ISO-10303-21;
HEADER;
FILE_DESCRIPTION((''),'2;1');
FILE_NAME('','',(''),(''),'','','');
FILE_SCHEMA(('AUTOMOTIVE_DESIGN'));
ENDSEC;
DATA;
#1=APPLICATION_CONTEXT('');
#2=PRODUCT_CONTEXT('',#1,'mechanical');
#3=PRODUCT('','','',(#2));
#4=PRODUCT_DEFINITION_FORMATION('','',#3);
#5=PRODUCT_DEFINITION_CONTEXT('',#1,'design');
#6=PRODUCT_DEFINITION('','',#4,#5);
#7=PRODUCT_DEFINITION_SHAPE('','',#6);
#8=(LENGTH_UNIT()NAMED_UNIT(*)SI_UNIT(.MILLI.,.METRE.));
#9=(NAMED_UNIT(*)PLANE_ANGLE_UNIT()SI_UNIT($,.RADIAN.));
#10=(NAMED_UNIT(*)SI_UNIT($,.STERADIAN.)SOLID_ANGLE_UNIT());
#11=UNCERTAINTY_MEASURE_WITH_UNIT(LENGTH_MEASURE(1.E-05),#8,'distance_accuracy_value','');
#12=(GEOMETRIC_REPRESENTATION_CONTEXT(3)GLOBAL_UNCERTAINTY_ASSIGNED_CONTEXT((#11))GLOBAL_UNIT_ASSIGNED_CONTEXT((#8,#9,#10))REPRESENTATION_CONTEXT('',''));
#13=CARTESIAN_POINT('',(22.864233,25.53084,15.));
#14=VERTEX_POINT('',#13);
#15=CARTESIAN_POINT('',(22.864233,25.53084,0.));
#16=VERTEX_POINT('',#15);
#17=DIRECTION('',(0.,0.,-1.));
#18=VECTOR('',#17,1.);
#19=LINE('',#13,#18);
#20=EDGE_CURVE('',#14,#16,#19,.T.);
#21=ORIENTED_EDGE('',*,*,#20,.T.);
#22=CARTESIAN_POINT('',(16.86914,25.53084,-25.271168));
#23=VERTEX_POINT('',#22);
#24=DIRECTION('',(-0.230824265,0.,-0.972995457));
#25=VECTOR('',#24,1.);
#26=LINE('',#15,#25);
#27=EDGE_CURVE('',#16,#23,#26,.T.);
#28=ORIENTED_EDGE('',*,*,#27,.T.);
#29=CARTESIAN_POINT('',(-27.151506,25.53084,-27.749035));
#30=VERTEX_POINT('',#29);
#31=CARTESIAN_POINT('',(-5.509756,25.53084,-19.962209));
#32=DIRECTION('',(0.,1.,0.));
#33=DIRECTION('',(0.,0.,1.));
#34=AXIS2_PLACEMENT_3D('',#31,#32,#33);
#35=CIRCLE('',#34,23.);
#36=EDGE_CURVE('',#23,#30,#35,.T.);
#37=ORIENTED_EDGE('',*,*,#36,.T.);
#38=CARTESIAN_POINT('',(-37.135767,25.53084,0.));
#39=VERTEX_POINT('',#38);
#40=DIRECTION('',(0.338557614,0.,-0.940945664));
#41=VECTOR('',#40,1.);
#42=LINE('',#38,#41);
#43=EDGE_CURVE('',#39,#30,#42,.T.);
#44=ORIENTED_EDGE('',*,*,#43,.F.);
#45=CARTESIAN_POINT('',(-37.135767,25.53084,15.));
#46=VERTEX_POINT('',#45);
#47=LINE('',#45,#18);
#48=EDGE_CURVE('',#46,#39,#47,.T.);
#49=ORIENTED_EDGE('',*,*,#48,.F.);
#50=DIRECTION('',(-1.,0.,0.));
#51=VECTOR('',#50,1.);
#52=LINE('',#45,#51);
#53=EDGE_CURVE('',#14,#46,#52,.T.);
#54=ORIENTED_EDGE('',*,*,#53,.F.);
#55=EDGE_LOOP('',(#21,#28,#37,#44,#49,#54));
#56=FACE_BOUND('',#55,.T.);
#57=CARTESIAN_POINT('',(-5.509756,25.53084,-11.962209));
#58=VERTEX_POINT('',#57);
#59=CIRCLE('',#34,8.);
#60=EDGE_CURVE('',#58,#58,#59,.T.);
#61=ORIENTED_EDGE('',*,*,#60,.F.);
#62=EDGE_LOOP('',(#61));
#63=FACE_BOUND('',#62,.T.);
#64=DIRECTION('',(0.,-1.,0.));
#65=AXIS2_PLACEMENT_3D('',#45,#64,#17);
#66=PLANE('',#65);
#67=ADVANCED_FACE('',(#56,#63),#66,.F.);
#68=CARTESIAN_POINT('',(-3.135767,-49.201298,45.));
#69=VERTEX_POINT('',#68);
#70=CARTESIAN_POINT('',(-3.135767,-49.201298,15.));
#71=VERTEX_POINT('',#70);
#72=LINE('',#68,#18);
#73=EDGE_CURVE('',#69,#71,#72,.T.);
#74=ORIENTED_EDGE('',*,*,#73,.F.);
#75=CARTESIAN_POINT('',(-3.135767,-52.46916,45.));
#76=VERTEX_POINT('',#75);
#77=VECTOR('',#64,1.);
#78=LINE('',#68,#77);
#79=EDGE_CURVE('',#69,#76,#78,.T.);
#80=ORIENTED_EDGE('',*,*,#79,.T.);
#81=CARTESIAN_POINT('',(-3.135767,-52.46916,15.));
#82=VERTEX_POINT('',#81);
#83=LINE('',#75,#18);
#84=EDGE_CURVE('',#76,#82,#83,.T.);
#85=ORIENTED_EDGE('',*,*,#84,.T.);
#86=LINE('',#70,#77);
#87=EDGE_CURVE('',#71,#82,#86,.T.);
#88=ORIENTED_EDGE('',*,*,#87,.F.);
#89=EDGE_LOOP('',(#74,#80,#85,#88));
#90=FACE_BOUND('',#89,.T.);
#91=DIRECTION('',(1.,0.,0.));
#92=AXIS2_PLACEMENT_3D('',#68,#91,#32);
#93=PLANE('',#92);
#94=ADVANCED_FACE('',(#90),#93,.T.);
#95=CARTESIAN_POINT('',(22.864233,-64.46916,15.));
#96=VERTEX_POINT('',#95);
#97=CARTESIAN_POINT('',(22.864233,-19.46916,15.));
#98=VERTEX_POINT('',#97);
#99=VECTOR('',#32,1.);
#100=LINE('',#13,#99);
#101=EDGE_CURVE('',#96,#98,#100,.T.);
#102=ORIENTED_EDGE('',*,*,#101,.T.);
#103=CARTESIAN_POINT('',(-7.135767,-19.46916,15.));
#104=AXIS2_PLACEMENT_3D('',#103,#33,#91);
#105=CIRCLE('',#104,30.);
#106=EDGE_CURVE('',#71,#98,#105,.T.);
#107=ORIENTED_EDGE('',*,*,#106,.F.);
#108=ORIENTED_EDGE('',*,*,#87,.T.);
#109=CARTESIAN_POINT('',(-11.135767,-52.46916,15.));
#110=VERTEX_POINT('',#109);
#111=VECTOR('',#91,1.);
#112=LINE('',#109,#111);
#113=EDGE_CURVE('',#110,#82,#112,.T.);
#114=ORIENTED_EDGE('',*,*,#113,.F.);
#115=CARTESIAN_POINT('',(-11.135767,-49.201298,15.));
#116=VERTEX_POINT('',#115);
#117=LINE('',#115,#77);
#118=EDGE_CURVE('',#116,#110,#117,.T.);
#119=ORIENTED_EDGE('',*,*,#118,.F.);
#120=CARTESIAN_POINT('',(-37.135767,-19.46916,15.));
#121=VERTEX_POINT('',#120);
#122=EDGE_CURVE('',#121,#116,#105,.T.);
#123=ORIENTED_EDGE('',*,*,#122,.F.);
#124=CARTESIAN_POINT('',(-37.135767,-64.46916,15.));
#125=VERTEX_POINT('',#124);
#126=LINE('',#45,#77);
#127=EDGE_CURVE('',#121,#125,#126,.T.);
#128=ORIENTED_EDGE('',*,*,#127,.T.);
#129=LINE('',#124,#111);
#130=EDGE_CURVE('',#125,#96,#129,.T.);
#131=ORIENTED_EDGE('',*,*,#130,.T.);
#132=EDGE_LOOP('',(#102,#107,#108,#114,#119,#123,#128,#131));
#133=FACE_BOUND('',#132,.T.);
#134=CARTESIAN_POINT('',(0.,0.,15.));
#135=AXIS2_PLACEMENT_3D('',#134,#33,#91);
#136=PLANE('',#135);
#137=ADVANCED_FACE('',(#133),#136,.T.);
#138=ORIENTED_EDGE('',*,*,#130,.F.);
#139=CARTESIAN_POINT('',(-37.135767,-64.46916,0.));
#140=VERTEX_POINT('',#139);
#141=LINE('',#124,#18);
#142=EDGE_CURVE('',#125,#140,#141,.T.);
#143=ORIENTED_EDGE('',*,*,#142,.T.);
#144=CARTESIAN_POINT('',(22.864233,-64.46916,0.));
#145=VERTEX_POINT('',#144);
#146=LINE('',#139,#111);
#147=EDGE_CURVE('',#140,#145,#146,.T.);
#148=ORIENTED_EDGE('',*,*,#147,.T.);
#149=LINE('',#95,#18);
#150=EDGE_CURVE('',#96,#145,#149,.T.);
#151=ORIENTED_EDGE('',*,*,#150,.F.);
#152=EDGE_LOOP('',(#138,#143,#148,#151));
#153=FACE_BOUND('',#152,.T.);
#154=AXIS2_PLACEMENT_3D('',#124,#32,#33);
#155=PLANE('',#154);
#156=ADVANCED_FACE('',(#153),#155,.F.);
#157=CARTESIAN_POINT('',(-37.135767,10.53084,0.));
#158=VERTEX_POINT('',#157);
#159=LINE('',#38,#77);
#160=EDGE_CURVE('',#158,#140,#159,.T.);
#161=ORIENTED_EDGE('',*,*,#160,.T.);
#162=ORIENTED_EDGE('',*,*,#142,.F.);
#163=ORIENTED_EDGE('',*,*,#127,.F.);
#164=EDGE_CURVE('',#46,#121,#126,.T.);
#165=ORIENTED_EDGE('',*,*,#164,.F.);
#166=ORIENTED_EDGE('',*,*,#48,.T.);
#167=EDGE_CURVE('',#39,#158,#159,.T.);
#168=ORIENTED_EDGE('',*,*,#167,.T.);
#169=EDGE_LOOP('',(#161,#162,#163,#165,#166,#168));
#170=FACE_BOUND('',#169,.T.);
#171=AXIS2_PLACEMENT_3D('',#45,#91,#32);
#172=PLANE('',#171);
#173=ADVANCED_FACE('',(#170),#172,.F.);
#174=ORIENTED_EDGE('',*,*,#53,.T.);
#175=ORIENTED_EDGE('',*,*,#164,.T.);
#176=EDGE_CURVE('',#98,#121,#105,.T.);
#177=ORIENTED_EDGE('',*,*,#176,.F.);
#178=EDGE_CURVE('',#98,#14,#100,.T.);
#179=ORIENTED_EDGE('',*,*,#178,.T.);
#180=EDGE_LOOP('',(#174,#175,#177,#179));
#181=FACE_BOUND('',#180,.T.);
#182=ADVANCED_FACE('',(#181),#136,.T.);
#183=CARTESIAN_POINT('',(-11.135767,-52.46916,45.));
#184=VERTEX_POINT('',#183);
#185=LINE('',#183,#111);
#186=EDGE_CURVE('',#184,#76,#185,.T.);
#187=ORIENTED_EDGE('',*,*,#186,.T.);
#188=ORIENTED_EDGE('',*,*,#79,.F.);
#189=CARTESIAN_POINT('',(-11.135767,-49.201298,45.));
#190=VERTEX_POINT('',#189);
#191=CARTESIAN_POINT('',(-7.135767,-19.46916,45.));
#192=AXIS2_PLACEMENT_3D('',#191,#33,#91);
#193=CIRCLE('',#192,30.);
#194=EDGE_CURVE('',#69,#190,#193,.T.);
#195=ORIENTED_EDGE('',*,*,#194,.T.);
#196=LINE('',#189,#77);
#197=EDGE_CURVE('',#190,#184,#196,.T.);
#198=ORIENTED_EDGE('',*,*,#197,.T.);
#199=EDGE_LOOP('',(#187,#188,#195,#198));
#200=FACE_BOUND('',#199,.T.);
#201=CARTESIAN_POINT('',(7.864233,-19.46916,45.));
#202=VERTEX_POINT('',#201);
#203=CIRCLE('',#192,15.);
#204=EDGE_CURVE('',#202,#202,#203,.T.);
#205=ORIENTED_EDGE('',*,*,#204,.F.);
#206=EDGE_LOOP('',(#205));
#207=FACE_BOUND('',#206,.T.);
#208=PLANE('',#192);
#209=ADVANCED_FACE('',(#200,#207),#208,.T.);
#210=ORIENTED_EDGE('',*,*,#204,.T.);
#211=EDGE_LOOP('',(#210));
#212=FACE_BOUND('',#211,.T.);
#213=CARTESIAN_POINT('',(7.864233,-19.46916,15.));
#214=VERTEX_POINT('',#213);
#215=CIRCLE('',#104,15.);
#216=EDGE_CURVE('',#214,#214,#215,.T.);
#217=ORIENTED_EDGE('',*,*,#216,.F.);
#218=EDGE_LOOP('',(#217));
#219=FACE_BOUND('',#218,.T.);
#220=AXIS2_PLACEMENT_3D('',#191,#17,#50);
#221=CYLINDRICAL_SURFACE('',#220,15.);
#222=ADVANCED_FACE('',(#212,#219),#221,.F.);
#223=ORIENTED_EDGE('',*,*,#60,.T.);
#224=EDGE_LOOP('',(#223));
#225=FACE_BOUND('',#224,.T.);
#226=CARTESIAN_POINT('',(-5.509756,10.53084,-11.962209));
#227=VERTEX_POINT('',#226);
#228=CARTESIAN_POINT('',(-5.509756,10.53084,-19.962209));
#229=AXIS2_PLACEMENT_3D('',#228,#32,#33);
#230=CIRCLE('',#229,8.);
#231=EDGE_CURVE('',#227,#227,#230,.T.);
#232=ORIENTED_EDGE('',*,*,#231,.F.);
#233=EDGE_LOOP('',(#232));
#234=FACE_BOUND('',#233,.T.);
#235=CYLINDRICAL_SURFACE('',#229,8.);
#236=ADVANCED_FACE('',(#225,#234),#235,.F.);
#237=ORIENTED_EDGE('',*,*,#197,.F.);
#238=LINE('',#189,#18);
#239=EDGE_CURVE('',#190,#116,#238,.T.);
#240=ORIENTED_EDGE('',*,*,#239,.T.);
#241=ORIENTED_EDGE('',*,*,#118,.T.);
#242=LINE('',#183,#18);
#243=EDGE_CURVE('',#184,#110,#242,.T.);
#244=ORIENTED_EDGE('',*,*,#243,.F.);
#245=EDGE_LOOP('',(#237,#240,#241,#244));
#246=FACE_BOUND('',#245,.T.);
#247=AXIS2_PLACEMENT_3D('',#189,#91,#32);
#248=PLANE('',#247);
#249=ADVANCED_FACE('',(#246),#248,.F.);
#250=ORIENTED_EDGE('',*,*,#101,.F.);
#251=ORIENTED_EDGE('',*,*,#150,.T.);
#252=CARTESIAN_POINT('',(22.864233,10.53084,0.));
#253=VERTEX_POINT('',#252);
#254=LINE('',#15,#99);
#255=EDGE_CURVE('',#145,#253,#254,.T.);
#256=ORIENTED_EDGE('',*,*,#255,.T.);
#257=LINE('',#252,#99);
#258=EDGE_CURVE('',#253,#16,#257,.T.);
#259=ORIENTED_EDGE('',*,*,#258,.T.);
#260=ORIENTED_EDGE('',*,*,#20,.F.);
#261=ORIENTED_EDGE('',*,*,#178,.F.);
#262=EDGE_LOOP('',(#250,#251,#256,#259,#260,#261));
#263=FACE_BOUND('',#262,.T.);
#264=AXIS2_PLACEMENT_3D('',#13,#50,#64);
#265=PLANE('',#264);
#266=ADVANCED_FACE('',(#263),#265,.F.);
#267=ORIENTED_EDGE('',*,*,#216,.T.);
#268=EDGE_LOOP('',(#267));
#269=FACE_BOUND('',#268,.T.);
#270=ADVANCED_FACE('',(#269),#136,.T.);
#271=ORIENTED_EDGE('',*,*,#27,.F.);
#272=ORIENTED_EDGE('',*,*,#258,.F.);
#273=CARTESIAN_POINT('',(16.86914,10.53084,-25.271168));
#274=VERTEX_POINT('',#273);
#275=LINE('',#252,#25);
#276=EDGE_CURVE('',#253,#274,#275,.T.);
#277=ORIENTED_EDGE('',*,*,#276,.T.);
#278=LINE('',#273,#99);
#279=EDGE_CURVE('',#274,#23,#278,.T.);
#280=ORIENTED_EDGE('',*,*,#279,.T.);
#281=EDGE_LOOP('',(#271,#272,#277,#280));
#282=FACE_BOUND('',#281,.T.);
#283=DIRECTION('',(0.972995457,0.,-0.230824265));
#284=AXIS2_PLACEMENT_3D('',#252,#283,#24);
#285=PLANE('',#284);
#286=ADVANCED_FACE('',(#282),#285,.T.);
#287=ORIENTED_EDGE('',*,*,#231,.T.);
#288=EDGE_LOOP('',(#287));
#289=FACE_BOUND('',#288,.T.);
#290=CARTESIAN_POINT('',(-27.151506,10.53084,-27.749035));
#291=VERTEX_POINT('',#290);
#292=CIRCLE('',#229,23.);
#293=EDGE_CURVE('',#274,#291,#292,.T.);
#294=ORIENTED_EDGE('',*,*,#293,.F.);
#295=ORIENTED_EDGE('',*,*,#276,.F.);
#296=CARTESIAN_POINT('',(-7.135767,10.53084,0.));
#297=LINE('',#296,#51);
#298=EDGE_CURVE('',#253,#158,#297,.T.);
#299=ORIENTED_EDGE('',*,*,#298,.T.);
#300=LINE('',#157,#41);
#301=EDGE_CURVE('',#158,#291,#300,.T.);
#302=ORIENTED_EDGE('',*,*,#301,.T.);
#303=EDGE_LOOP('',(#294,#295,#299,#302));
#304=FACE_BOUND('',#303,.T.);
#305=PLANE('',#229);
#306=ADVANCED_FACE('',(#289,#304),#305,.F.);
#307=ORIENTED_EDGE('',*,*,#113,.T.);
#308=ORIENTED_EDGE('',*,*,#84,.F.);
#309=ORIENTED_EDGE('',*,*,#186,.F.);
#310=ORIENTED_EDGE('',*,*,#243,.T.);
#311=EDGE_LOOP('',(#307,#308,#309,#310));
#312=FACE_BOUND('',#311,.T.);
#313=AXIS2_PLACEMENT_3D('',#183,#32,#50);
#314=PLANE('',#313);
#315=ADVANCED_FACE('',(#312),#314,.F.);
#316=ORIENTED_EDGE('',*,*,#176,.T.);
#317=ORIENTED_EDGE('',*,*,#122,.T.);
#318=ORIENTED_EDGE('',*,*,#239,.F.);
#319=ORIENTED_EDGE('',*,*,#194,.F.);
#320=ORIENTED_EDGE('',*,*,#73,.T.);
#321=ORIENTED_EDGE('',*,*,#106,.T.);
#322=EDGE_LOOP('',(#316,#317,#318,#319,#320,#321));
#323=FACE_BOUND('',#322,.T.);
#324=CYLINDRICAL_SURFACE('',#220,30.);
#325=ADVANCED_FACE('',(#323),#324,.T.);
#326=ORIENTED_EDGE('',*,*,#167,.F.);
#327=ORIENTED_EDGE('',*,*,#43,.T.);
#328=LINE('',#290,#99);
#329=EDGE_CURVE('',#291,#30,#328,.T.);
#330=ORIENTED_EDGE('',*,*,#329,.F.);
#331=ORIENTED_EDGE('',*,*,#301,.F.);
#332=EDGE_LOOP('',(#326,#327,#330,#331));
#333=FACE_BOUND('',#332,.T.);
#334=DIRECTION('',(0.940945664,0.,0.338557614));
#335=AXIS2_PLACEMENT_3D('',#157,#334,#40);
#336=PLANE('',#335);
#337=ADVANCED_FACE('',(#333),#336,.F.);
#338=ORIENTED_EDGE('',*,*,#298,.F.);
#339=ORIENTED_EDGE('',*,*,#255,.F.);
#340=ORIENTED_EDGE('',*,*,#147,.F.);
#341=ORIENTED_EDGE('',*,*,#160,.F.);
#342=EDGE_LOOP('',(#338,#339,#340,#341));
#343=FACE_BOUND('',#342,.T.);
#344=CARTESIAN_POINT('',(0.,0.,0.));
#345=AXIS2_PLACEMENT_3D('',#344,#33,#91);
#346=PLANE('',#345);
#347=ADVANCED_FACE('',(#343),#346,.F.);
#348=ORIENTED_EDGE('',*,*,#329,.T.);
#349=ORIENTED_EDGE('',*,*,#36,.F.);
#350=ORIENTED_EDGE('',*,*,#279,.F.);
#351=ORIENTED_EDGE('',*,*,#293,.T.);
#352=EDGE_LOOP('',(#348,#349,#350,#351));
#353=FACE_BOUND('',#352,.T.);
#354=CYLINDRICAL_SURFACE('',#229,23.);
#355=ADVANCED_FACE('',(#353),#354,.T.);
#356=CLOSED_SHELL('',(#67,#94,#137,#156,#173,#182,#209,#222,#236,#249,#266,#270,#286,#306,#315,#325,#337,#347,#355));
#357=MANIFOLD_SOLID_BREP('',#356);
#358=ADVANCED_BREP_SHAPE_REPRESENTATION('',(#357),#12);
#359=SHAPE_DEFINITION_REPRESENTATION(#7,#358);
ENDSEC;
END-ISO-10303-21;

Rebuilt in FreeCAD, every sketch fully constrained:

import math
import FreeCAD as App
import Part
import Sketcher

V = App.Vector


def add_polygon(sketch, points):
    """Adds a closed chain of lines whose ends are joined by coincident constraints."""
    first, n = sketch.GeometryCount, len(points)
    for a, b in zip(points, points[1:] + points[:1]):
        sketch.addGeometry(Part.LineSegment(App.Vector(*a, 0), App.Vector(*b, 0)), False)
    for i in range(n):
        sketch.addConstraint(Sketcher.Constraint("Coincident", first + i, 2, first + (i + 1) % n, 1))

doc = App.newDocument("Part")
body = doc.addObject("PartDesign::Body", "Body")

sketch1 = body.newObject("Sketcher::SketchObject", "Sketch")
sketch1.AttachmentSupport = (doc.getObject("XY_Plane"), [""])
sketch1.MapMode = "FlatFace"
add_polygon(sketch1, [(-37.135767, 25.53084), (-37.135767, -64.46916), (22.864233, -64.46916), (22.864233, 25.53084)])
sketch1.addConstraint([
    Sketcher.Constraint("Vertical", 0),
    Sketcher.Constraint("Horizontal", 1),
    Sketcher.Constraint("Vertical", 2),
    Sketcher.Constraint("Horizontal", 3),
    Sketcher.Constraint("DistanceX", 1, 1, 1, 2, 60.0),
    Sketcher.Constraint("DistanceY", 0, 2, 0, 1, 90.0),
    Sketcher.Constraint("DistanceY", 0, 2, -1, 1, 64.46916),
    Sketcher.Constraint("DistanceX", 0, 2, -1, 1, 37.135767),
])
pad1 = body.newObject("PartDesign::Pad", "Pad")
pad1.Profile = sketch1
pad1.Length = 15

sketch2 = body.newObject("Sketcher::SketchObject", "Sketch001")
sketch2.AttachmentSupport = (doc.getObject("XY_Plane"), [""])
sketch2.MapMode = "FlatFace"
sketch2.AttachmentOffset = App.Placement(V(0, 0, 15), App.Rotation())
sketch2.addGeometry([
    Part.LineSegment(V(-11.135767, -49.201298, 0), V(-11.135767, -52.46916, 0)),
    Part.LineSegment(V(-11.135767, -52.46916, 0), V(-3.135767, -52.46916, 0)),
    Part.LineSegment(V(-3.135767, -52.46916, 0), V(-3.135767, -49.201298, 0)),
    Part.ArcOfCircle(Part.Circle(V(-7.135767, -19.46916, 0), V(0, 0, 1), 30), math.radians(-82.337744), math.radians(262.337744)),
    Part.Circle(V(-7.135767, -19.46916, 0), V(0, 0, 1), 15),
], False)
sketch2.addConstraint([
    Sketcher.Constraint("Coincident", 0, 2, 1, 1),
    Sketcher.Constraint("Coincident", 1, 2, 2, 1),
    Sketcher.Constraint("Coincident", 2, 2, 3, 1),
    Sketcher.Constraint("Coincident", 3, 2, 0, 1),
    Sketcher.Constraint("Vertical", 0),
    Sketcher.Constraint("Horizontal", 1),
    Sketcher.Constraint("Vertical", 2),
    Sketcher.Constraint("Coincident", 4, 3, 3, 3),
    Sketcher.Constraint("Horizontal", 2, 2, 3, 2),
    Sketcher.Constraint("Diameter", 4, 30.0),
    Sketcher.Constraint("Radius", 3, 30.0),
    Sketcher.Constraint("DistanceX", 1, 1, 1, 2, 8.0),
    Sketcher.Constraint("DistanceY", 0, 2, 3, 3, 33.0),
    Sketcher.Constraint("DistanceY", 3, 3, -1, 1, 19.46916),
    Sketcher.Constraint("DistanceX", 3, 3, -1, 1, 7.135767),
])
pad2 = body.newObject("PartDesign::Pad", "Pad001")
pad2.Profile = sketch2
pad2.Length = 30

sketch3 = body.newObject("Sketcher::SketchObject", "Sketch002")
sketch3.AttachmentSupport = (doc.getObject("XZ_Plane"), [""])
sketch3.MapMode = "FlatFace"
sketch3.AttachmentOffset = App.Placement(V(0, 0, -25.53084), App.Rotation())
sketch3.addGeometry([
    Part.LineSegment(V(-27.151506, -27.749035, 0), V(-37.135767, 0, 0)),
    Part.LineSegment(V(-37.135767, 0, 0), V(22.864233, 0, 0)),
    Part.LineSegment(V(22.864233, 0, 0), V(16.86914, -25.271168, 0)),
    Part.ArcOfCircle(Part.Circle(V(-5.509756, -19.962209, 0), V(0, 0, 1), 23), math.radians(-160.21098), math.radians(-13.345605)),
    Part.Circle(V(-5.509756, -19.962209, 0), V(0, 0, 1), 8),
], False)
sketch3.addConstraint([
    Sketcher.Constraint("Coincident", 0, 2, 1, 1),
    Sketcher.Constraint("Coincident", 1, 2, 2, 1),
    Sketcher.Constraint("Tangent", 2, 2, 3, 2),
    Sketcher.Constraint("Tangent", 3, 1, 0, 1),
    Sketcher.Constraint("Horizontal", 1),
    Sketcher.Constraint("Coincident", 4, 3, 3, 3),
    Sketcher.Constraint("PointOnObject", 0, 2, -1),
    Sketcher.Constraint("Diameter", 4, 16.0),
    Sketcher.Constraint("Radius", 3, 23.0),
    Sketcher.Constraint("DistanceX", 1, 1, 1, 2, 60.0),
    Sketcher.Constraint("Distance", 0, 29.490581),
    Sketcher.Constraint("DistanceY", 3, 3, -1, 1, 19.962209),
    Sketcher.Constraint("DistanceX", -1, 1, 2, 2, 16.86914),
])
pad3 = body.newObject("PartDesign::Pad", "Pad002")
pad3.Profile = sketch3
pad3.Length = 15

doc.recompute()
